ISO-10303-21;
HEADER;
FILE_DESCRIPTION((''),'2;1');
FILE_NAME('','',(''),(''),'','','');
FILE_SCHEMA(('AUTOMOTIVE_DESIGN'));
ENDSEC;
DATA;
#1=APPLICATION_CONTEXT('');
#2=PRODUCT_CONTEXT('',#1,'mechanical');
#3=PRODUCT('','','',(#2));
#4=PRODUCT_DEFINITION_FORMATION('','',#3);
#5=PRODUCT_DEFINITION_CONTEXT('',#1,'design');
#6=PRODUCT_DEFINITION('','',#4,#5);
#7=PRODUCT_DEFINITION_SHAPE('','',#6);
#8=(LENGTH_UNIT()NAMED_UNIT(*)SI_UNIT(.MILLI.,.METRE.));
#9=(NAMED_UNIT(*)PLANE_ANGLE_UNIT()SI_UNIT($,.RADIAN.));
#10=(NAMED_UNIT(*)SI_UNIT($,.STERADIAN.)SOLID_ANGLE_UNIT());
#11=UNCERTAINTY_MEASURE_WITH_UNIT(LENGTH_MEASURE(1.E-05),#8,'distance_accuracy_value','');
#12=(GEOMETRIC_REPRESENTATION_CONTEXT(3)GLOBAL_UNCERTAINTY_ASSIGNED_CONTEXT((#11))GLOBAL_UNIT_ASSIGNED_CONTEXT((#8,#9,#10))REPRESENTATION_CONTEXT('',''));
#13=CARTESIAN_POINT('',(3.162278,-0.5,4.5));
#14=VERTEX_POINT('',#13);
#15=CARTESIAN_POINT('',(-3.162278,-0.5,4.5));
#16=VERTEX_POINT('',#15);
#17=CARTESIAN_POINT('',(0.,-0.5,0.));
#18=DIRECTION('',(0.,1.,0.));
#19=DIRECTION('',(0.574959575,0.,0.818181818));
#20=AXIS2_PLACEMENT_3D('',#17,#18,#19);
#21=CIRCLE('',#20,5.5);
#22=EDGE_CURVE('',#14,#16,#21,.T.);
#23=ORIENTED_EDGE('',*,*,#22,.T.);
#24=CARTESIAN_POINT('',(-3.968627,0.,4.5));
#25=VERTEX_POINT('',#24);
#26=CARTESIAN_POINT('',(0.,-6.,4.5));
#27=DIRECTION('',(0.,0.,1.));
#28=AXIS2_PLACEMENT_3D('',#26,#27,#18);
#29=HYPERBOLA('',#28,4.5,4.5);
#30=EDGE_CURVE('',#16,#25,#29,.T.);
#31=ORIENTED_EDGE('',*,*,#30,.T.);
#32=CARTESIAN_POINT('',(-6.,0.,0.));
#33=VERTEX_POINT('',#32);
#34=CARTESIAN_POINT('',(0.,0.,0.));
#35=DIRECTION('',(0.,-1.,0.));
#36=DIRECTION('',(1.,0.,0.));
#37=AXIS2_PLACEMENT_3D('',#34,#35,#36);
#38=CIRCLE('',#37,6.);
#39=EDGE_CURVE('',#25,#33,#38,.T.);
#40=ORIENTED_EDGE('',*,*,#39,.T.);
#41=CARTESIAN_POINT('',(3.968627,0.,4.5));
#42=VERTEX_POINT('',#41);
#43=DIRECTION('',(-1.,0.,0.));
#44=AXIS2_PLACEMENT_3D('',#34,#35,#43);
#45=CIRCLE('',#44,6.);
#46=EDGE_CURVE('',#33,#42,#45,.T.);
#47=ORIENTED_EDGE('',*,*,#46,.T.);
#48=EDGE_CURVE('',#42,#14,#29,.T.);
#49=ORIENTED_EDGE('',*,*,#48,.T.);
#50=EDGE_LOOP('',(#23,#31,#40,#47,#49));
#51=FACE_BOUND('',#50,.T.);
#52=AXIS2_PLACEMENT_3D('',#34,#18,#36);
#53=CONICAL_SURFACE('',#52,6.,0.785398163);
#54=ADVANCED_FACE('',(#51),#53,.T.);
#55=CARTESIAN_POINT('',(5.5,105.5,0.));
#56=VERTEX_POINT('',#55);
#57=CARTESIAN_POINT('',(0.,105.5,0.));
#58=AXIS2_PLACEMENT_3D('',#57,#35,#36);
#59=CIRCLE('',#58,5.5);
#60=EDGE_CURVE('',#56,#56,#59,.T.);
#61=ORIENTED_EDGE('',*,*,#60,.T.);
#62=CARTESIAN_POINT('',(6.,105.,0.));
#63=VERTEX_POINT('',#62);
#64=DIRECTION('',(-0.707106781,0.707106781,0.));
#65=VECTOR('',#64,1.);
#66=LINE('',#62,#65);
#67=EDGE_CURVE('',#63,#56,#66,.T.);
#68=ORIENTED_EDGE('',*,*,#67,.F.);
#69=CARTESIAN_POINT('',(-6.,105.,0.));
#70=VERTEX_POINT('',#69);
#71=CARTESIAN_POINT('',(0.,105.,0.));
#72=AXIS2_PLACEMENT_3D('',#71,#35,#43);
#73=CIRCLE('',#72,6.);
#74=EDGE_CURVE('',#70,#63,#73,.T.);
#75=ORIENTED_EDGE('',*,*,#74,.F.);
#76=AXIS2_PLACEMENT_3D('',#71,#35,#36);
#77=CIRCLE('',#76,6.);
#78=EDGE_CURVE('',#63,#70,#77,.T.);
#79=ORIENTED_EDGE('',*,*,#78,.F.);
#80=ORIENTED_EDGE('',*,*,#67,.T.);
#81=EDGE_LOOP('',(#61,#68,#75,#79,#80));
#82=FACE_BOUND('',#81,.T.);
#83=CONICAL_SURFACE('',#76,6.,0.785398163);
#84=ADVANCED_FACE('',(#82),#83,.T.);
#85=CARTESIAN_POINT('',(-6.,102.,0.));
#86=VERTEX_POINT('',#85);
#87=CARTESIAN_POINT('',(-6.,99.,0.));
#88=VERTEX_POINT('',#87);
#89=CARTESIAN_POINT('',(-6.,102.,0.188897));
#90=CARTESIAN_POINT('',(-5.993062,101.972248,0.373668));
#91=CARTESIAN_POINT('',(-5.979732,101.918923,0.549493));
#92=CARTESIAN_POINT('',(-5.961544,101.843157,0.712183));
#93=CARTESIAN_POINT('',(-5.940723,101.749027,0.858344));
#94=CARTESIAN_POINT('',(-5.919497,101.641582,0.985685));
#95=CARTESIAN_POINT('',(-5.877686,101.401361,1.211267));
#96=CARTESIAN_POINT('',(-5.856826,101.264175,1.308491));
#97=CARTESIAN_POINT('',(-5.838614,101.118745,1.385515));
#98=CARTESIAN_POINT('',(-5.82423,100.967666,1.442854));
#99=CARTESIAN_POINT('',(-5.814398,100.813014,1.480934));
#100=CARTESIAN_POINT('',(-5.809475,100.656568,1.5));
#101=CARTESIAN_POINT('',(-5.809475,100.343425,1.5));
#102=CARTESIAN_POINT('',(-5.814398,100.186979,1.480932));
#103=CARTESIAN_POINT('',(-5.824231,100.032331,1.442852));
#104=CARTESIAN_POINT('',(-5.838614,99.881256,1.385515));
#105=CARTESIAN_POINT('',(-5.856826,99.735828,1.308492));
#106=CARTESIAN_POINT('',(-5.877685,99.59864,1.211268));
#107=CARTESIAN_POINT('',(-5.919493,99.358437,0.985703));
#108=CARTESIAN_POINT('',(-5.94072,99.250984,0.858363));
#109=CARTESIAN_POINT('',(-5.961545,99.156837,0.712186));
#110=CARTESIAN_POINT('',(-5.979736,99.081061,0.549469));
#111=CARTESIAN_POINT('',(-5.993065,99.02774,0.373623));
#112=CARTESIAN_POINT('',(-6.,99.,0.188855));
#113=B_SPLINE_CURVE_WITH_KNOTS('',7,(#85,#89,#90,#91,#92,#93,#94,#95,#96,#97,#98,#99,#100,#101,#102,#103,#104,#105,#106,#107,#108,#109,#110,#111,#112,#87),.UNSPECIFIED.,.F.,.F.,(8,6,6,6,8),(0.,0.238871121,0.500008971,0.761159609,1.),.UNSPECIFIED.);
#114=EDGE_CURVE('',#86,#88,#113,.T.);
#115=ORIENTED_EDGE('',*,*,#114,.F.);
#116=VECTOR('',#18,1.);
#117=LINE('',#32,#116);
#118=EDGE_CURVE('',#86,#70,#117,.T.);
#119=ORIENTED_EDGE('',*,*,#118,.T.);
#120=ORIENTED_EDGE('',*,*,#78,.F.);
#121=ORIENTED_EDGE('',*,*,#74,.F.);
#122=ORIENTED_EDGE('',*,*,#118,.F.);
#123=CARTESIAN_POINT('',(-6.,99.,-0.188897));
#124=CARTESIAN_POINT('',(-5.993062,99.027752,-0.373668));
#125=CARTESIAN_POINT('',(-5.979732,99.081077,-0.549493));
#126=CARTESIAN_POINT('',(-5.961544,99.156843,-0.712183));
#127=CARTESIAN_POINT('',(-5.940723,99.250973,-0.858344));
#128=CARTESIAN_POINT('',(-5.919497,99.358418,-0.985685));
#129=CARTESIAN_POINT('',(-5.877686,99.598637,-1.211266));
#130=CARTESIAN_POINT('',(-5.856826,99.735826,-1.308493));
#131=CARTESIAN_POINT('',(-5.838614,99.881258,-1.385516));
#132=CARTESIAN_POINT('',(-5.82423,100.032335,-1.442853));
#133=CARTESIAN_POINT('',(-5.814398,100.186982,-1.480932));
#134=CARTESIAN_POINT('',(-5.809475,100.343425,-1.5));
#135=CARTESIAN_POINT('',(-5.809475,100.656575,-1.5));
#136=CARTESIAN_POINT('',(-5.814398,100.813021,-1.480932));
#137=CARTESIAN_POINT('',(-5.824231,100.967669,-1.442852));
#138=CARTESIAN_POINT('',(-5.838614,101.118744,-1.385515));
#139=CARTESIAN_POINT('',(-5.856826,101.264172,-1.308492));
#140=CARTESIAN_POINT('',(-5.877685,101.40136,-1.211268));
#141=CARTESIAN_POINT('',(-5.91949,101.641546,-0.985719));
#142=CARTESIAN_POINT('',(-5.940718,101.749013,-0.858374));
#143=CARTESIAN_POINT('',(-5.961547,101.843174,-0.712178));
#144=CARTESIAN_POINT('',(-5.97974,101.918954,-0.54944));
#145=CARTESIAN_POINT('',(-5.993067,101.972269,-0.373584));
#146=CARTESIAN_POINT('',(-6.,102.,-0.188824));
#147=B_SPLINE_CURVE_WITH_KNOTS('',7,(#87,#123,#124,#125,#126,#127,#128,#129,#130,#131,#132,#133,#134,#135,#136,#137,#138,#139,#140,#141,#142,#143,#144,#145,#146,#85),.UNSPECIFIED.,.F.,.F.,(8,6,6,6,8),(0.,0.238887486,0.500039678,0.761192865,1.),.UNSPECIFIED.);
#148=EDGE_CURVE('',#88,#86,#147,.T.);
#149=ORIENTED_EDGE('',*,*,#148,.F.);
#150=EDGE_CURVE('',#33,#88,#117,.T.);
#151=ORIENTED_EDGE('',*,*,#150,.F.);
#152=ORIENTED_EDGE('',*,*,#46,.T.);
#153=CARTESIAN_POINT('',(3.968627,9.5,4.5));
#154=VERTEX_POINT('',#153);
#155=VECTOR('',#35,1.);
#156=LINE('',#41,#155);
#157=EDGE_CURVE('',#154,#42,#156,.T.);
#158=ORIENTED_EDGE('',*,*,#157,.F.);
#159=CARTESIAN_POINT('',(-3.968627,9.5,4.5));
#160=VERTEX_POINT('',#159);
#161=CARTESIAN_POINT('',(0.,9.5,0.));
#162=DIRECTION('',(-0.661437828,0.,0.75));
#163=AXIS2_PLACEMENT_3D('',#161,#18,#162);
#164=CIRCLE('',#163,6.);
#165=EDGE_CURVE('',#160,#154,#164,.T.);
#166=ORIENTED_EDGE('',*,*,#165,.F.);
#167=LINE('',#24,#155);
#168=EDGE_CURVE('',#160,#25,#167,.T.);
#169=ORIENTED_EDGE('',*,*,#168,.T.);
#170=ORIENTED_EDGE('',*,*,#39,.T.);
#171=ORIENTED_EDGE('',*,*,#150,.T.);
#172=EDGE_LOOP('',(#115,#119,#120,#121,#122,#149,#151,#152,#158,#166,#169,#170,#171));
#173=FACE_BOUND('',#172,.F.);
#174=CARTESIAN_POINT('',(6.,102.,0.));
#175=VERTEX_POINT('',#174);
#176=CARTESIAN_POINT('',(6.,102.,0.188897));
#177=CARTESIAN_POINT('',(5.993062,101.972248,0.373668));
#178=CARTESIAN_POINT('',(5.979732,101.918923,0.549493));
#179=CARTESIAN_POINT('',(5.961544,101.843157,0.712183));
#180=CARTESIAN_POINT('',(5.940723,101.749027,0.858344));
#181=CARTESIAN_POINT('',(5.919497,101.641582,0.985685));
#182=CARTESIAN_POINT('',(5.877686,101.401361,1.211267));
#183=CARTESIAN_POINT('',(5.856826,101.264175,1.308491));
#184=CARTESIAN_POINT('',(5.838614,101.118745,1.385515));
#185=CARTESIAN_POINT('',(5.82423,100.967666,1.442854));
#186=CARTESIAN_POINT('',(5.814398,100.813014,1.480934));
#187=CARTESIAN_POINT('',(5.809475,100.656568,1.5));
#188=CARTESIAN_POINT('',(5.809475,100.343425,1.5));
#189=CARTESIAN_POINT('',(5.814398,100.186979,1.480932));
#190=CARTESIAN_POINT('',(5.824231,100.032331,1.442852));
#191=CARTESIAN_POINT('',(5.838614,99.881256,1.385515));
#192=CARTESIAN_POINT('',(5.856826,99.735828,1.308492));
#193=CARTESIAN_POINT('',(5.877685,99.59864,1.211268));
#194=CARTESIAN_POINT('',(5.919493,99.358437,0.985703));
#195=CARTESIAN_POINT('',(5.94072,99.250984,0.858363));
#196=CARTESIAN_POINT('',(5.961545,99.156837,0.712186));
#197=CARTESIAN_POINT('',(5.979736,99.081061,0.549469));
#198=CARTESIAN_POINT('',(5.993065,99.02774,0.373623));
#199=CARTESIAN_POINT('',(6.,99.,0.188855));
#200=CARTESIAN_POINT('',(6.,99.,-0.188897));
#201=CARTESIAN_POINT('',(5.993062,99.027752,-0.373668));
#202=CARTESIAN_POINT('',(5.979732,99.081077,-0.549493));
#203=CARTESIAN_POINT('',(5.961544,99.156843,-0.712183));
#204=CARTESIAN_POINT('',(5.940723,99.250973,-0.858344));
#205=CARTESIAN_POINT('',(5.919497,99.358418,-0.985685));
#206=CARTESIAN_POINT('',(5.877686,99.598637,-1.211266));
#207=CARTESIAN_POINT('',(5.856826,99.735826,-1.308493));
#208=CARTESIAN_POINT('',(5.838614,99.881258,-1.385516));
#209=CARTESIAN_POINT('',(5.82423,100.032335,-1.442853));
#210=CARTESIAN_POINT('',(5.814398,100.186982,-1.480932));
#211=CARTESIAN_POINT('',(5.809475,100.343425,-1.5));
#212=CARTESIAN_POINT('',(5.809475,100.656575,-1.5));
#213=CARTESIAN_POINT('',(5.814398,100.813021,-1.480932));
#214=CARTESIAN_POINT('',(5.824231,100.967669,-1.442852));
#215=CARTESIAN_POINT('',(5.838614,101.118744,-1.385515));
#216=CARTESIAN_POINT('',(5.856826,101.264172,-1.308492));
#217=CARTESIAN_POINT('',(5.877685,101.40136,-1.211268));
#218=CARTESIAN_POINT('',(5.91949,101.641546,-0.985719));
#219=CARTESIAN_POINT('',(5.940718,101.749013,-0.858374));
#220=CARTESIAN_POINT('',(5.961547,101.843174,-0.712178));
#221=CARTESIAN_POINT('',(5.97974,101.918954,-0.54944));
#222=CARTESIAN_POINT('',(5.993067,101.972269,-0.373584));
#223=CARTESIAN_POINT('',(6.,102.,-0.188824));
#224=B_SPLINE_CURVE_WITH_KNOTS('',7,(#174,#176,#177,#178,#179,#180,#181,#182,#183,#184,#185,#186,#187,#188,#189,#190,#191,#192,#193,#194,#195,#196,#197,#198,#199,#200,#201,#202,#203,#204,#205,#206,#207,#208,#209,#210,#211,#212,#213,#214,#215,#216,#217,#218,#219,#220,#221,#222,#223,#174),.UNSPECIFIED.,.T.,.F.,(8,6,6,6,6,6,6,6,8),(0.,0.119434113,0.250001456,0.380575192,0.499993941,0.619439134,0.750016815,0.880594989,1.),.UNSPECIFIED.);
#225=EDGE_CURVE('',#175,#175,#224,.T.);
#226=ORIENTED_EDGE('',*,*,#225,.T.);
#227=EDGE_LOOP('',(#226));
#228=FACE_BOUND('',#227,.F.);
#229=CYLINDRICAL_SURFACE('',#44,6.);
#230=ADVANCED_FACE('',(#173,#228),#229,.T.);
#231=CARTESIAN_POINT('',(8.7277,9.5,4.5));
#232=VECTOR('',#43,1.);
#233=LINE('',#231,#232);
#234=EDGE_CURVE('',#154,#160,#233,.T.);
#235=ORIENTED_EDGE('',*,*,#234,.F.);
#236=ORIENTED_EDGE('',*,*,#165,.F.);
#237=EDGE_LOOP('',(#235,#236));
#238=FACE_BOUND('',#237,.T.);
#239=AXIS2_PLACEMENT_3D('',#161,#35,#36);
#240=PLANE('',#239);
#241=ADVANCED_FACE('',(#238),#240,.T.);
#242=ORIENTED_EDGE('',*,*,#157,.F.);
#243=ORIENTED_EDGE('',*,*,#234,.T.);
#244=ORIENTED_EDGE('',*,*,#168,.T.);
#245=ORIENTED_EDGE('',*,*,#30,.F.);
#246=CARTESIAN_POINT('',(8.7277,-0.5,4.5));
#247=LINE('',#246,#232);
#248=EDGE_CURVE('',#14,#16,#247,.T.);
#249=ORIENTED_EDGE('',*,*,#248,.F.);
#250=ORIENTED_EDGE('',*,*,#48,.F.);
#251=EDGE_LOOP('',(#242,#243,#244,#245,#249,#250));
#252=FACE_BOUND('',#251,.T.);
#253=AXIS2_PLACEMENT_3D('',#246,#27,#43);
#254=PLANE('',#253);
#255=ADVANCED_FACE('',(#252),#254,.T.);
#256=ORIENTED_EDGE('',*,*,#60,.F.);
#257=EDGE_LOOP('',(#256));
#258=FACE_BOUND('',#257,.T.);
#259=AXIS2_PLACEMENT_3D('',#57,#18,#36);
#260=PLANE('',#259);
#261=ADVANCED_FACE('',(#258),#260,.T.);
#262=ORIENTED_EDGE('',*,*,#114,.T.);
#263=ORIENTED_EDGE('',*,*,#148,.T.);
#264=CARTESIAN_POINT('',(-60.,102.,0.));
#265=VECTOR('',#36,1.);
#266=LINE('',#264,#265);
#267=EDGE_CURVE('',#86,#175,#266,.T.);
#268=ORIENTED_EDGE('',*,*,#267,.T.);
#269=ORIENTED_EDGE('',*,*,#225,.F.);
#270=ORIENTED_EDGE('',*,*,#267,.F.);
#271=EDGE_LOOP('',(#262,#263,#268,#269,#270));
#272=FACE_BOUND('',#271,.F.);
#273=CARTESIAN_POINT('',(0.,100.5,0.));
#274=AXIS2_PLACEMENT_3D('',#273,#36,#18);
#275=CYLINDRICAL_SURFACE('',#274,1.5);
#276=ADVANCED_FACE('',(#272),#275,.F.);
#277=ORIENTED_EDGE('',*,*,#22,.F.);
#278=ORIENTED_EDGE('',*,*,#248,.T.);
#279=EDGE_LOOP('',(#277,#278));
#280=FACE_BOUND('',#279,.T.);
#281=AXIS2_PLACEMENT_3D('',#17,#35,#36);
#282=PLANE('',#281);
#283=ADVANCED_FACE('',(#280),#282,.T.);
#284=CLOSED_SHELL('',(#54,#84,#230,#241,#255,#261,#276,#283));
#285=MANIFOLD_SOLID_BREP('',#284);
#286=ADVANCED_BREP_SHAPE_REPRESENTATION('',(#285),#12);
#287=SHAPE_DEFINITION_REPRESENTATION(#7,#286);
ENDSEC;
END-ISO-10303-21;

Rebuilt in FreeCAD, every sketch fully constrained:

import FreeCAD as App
import Part
import Sketcher
from FreeCAD import Vector

doc = App.newDocument("Part")
body = doc.addObject("PartDesign::Body", "Body")

# Sketch on XZ plane
sketch1 = body.newObject("Sketcher::SketchObject", "Sketch")
sketch1.AttachmentSupport = (doc.getObject("XZ_Plane"), [""])
sketch1.MapMode = "FlatFace"
sketch1.addGeometry(Part.Circle(Vector(0, 0, 0), Vector(0, 0, 1), 6), False)
sketch1.addConstraint(Sketcher.Constraint("Coincident", 0, 3, -1, 1))
sketch1.addConstraint(Sketcher.Constraint("Diameter", 0, 12.0))
pad1 = body.newObject("PartDesign::Pad", "Pad")
pad1.Profile = sketch1
pad1.Length = 105
pad1.Reversed = True

# Sketch on XZ plane
sketch2 = body.newObject("Sketcher::SketchObject", "Sketch001")
sketch2.AttachmentSupport = (doc.getObject("XZ_Plane"), [""])
sketch2.MapMode = "FlatFace"
sketch2.AttachmentOffset = App.Placement(Vector(0, 0, -105), App.Rotation())
sketch2.addGeometry(Part.Circle(Vector(0, 0, 0), Vector(0, 0, 1), 6), False)
sketch2.addConstraint(Sketcher.Constraint("Coincident", 0, 3, -1, 1))
sketch2.addConstraint(Sketcher.Constraint("Diameter", 0, 12.0))
pad2 = body.newObject("PartDesign::Pad", "Pad001")
pad2.Profile = sketch2
pad2.Length = 0.5
pad2.Reversed = True
pad2.TaperAngle = -45

# Sketch on XZ plane
sketch3 = body.newObject("Sketcher::SketchObject", "Sketch002")
sketch3.AttachmentSupport = (doc.getObject("XZ_Plane"), [""])
sketch3.MapMode = "FlatFace"
sketch3.addGeometry(Part.Circle(Vector(0, 0, 0), Vector(0, 0, 1), 6), False)
sketch3.addConstraint(Sketcher.Constraint("Coincident", 0, 3, -1, 1))
sketch3.addConstraint(Sketcher.Constraint("Diameter", 0, 12.0))
pad3 = body.newObject("PartDesign::Pad", "Pad002")
pad3.Profile = sketch3
pad3.Length = 0.5
pad3.TaperAngle = -45

# Sketch on XZ plane
sketch4 = body.newObject("Sketcher::SketchObject", "Sketch003")
sketch4.AttachmentSupport = (doc.getObject("XZ_Plane"), [""])
sketch4.MapMode = "FlatFace"
sketch4.AttachmentOffset = App.Placement(Vector(0, 0, 0.5), App.Rotation())
sketch4.addGeometry(Part.LineSegment(Vector(8.7, 6, 0), Vector(-8.7, 6, 0)), False)
sketch4.addGeometry(Part.LineSegment(Vector(-8.7, 6, 0), Vector(-8.7, 4.5, 0)), False)
sketch4.addGeometry(Part.LineSegment(Vector(-8.7, 4.5, 0), Vector(8.7, 4.5, 0)), False)
sketch4.addGeometry(Part.LineSegment(Vector(8.7, 4.5, 0), Vector(8.7, 6, 0)), False)
sketch4.addConstraint(Sketcher.Constraint("Coincident", 0, 2, 1, 1))
sketch4.addConstraint(Sketcher.Constraint("Coincident", 1, 2, 2, 1))
sketch4.addConstraint(Sketcher.Constraint("Coincident", 2, 2, 3, 1))
sketch4.addConstraint(Sketcher.Constraint("Coincident", 3, 2, 0, 1))
sketch4.addConstraint(Sketcher.Constraint("Horizontal", 0))
sketch4.addConstraint(Sketcher.Constraint("Vertical", 1))
sketch4.addConstraint(Sketcher.Constraint("Horizontal", 2))
sketch4.addConstraint(Sketcher.Constraint("Vertical", 3))
sketch4.addConstraint(Sketcher.Constraint("DistanceY", 1, 2, 1, 1, 1.5))
sketch4.addConstraint(Sketcher.Constraint("DistanceY", -1, 1, 0, 2, 6.0))
sketch4.addConstraint(Sketcher.Constraint("DistanceX", 0, 2, 0, 1, 17.4554))
sketch4.addConstraint(Sketcher.Constraint("DistanceX", 0, 2, -1, 1, 8.7277))
pocket1 = body.newObject("PartDesign::Pocket", "Pocket")
pocket1.Profile = sketch4
pocket1.Length = 10

# Sketch on YZ plane
sketch5 = body.newObject("Sketcher::SketchObject", "Sketch004")
sketch5.AttachmentSupport = (doc.getObject("YZ_Plane"), [""])
sketch5.MapMode = "FlatFace"
sketch5.addGeometry(Part.Circle(Vector(100.5, 0, 0), Vector(0, 0, 1), 1.5), False)
sketch5.addConstraint(Sketcher.Constraint("PointOnObject", 0, 3, -1))
sketch5.addConstraint(Sketcher.Constraint("Diameter", 0, 3.0))
sketch5.addConstraint(Sketcher.Constraint("DistanceX", -1, 1, 0, 3, 100.5))
pocket2 = body.newObject("PartDesign::Pocket", "Pocket001")
pocket2.Profile = sketch5
pocket2.Length = 120
pocket2.Midplane = True

doc.recompute()
